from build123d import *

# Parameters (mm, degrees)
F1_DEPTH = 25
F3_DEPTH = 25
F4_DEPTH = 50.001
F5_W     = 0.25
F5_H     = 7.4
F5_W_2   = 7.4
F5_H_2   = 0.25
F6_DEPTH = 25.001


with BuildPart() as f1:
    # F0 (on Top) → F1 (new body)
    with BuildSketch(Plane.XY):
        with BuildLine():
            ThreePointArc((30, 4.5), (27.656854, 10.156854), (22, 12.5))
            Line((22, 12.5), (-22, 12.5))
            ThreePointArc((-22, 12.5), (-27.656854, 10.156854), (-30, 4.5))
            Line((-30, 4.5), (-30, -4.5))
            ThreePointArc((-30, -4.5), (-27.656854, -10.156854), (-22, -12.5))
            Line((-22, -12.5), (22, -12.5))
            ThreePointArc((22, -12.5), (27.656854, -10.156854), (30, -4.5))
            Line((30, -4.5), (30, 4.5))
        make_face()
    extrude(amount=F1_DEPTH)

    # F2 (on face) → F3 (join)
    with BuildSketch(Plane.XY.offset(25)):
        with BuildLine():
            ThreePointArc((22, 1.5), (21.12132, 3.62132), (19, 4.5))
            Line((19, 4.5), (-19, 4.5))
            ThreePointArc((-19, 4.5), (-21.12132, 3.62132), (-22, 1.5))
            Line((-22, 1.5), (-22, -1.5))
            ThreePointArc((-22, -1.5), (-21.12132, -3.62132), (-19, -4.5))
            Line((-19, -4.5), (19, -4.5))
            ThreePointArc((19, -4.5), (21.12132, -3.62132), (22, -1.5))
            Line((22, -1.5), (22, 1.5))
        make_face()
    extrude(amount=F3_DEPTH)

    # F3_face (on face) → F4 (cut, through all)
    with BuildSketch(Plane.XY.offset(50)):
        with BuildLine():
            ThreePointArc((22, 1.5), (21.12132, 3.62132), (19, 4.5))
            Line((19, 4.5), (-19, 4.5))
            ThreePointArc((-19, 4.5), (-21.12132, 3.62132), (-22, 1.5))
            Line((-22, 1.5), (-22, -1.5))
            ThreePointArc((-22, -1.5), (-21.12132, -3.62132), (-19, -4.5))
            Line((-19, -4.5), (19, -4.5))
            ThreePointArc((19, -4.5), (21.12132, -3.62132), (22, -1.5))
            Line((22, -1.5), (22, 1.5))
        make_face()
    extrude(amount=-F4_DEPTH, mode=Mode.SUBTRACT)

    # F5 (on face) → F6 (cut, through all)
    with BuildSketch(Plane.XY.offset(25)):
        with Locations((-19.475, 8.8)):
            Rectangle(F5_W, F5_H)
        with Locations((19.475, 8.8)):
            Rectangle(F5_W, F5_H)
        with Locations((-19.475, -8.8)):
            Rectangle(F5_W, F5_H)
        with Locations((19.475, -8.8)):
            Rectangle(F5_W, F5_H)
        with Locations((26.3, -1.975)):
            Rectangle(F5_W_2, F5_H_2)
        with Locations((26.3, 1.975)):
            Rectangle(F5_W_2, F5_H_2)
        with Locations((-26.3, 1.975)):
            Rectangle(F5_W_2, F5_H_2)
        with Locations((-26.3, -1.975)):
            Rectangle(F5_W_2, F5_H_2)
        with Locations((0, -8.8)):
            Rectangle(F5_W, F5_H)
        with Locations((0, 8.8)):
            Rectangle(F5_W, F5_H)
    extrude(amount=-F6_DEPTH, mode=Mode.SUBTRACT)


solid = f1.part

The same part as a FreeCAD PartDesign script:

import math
import FreeCAD as App
import Part
import Sketcher

V = App.Vector


def add_polygon(sketch, points):
    """Adds a closed chain of lines whose ends are joined by coincident constraints."""
    first, n = sketch.GeometryCount, len(points)
    for a, b in zip(points, points[1:] + points[:1]):
        sketch.addGeometry(Part.LineSegment(App.Vector(*a, 0), App.Vector(*b, 0)), False)
    for i in range(n):
        sketch.addConstraint(Sketcher.Constraint("Coincident", first + i, 2, first + (i + 1) % n, 1))

doc = App.newDocument("Part")
body = doc.addObject("PartDesign::Body", "Body")

sketch1 = body.newObject("Sketcher::SketchObject", "Sketch")
sketch1.AttachmentSupport = (doc.getObject("XY_Plane"), [""])
sketch1.MapMode = "FlatFace"
sketch1.addGeometry(Part.ArcOfCircle(Part.Circle(V(22, 4, 0), V(0, 0, 1), 8), math.radians(0), math.radians(90)), False)
sketch1.addGeometry(Part.LineSegment(V(22, 12, 0), V(-22, 12, 0)), False)
sketch1.addGeometry(Part.ArcOfCircle(Part.Circle(V(-22, 4, 0), V(0, 0, 1), 8), math.radians(90), math.radians(180)), False)
sketch1.addGeometry(Part.LineSegment(V(-30, 4, 0), V(-30, -4, 0)), False)
sketch1.addGeometry(Part.ArcOfCircle(Part.Circle(V(-22, -4, 0), V(0, 0, 1), 8), math.radians(-180), math.radians(-90)), False)
sketch1.addGeometry(Part.LineSegment(V(-22, -12, 0), V(22, -12, 0)), False)
sketch1.addGeometry(Part.ArcOfCircle(Part.Circle(V(22, -4, 0), V(0, 0, 1), 8), math.radians(-90), math.radians(0)), False)
sketch1.addGeometry(Part.LineSegment(V(30, -4, 0), V(30, 4, 0)), False)
sketch1.addConstraint(Sketcher.Constraint("Tangent", 0, 2, 1, 1))
sketch1.addConstraint(Sketcher.Constraint("Tangent", 1, 2, 2, 1))
sketch1.addConstraint(Sketcher.Constraint("Tangent", 2, 2, 3, 1))
sketch1.addConstraint(Sketcher.Constraint("Tangent", 3, 2, 4, 1))
sketch1.addConstraint(Sketcher.Constraint("Tangent", 4, 2, 5, 1))
sketch1.addConstraint(Sketcher.Constraint("Tangent", 5, 2, 6, 1))
sketch1.addConstraint(Sketcher.Constraint("Tangent", 6, 2, 7, 1))
sketch1.addConstraint(Sketcher.Constraint("Tangent", 7, 2, 0, 1))
sketch1.addConstraint(Sketcher.Constraint("Horizontal", 1))
sketch1.addConstraint(Sketcher.Constraint("Vertical", 3))
sketch1.addConstraint(Sketcher.Constraint("Horizontal", 5))
sketch1.addConstraint(Sketcher.Constraint("Vertical", 7))
sketch1.addConstraint(Sketcher.Constraint("Equal", 0, 2))
sketch1.addConstraint(Sketcher.Constraint("Equal", 2, 4))
sketch1.addConstraint(Sketcher.Constraint("Equal", 4, 6))
sketch1.addConstraint(Sketcher.Constraint("Symmetric", 0, 3, 4, 3, -1, 1))
sketch1.addConstraint(Sketcher.Constraint("Radius", 0, 8.000001))
sketch1.addConstraint(Sketcher.Constraint("DistanceX", 1, 2, 1, 1, 44.0))
sketch1.addConstraint(Sketcher.Constraint("DistanceY", 3, 2, 3, 1, 9.0))
pad1 = body.newObject("PartDesign::Pad", "Pad")
pad1.Profile = sketch1
pad1.Length = 25

sketch2 = body.newObject("Sketcher::SketchObject", "Sketch001")
sketch2.AttachmentSupport = (doc.getObject("XY_Plane"), [""])
sketch2.MapMode = "FlatFace"
sketch2.AttachmentOffset = App.Placement(V(0, 0, 25), App.Rotation())
sketch2.addGeometry(Part.ArcOfCircle(Part.Circle(V(19, 1.5, 0), V(0, 0, 1), 3), math.radians(0), math.radians(90)), False)
sketch2.addGeometry(Part.LineSegment(V(19, 4.5, 0), V(-19, 4.5, 0)), False)
sketch2.addGeometry(Part.ArcOfCircle(Part.Circle(V(-19, 1.5, 0), V(0, 0, 1), 3), math.radians(90), math.radians(180)), False)
sketch2.addGeometry(Part.LineSegment(V(-22, 1.5, 0), V(-22, -1.5, 0)), False)
sketch2.addGeometry(Part.ArcOfCircle(Part.Circle(V(-19, -1.5, 0), V(0, 0, 1), 3), math.radians(-180), math.radians(-90)), False)
sketch2.addGeometry(Part.LineSegment(V(-19, -4.5, 0), V(19, -4.5, 0)), False)
sketch2.addGeometry(Part.ArcOfCircle(Part.Circle(V(19, -1.5, 0), V(0, 0, 1), 3), math.radians(-90), math.radians(0)), False)
sketch2.addGeometry(Part.LineSegment(V(22, -1.5, 0), V(22, 1.5, 0)), False)
sketch2.addConstraint(Sketcher.Constraint("Tangent", 0, 2, 1, 1))
sketch2.addConstraint(Sketcher.Constraint("Tangent", 1, 2, 2, 1))
sketch2.addConstraint(Sketcher.Constraint("Tangent", 2, 2, 3, 1))
sketch2.addConstraint(Sketcher.Constraint("Tangent", 3, 2, 4, 1))
sketch2.addConstraint(Sketcher.Constraint("Tangent", 4, 2, 5, 1))
sketch2.addConstraint(Sketcher.Constraint("Tangent", 5, 2, 6, 1))
sketch2.addConstraint(Sketcher.Constraint("Tangent", 6, 2, 7, 1))
sketch2.addConstraint(Sketcher.Constraint("Tangent", 7, 2, 0, 1))
sketch2.addConstraint(Sketcher.Constraint("Horizontal", 1))
sketch2.addConstraint(Sketcher.Constraint("Vertical", 3))
sketch2.addConstraint(Sketcher.Constraint("Horizontal", 5))
sketch2.addConstraint(Sketcher.Constraint("Vertical", 7))
sketch2.addConstraint(Sketcher.Constraint("Equal", 0, 2))
sketch2.addConstraint(Sketcher.Constraint("Equal", 2, 4))
sketch2.addConstraint(Sketcher.Constraint("Equal", 4, 6))
sketch2.addConstraint(Sketcher.Constraint("Symmetric", 0, 3, 4, 3, -1, 1))
sketch2.addConstraint(Sketcher.Constraint("Radius", 0, 3.000001))
sketch2.addConstraint(Sketcher.Constraint("DistanceX", 1, 2, 1, 1, 38.0))
sketch2.addConstraint(Sketcher.Constraint("DistanceY", 3, 2, 3, 1, 3.0))
pad2 = body.newObject("PartDesign::Pad", "Pad001")
pad2.Profile = sketch2
pad2.Length = 25

sketch3 = body.newObject("Sketcher::SketchObject", "Sketch002")
sketch3.AttachmentSupport = (doc.getObject("XY_Plane"), [""])
sketch3.MapMode = "FlatFace"
sketch3.AttachmentOffset = App.Placement(V(0, 0, 50), App.Rotation())
sketch3.addGeometry(Part.ArcOfCircle(Part.Circle(V(19, 1.5, 0), V(0, 0, 1), 3), math.radians(0), math.radians(90)), False)
sketch3.addGeometry(Part.LineSegment(V(19, 4.5, 0), V(-19, 4.5, 0)), False)
sketch3.addGeometry(Part.ArcOfCircle(Part.Circle(V(-19, 1.5, 0), V(0, 0, 1), 3), math.radians(90), math.radians(180)), False)
sketch3.addGeometry(Part.LineSegment(V(-22, 1.5, 0), V(-22, -1.5, 0)), False)
sketch3.addGeometry(Part.ArcOfCircle(Part.Circle(V(-19, -1.5, 0), V(0, 0, 1), 3), math.radians(-180), math.radians(-90)), False)
sketch3.addGeometry(Part.LineSegment(V(-19, -4.5, 0), V(19, -4.5, 0)), False)
sketch3.addGeometry(Part.ArcOfCircle(Part.Circle(V(19, -1.5, 0), V(0, 0, 1), 3), math.radians(-90), math.radians(0)), False)
sketch3.addGeometry(Part.LineSegment(V(22, -1.5, 0), V(22, 1.5, 0)), False)
sketch3.addConstraint(Sketcher.Constraint("Tangent", 0, 2, 1, 1))
sketch3.addConstraint(Sketcher.Constraint("Tangent", 1, 2, 2, 1))
sketch3.addConstraint(Sketcher.Constraint("Tangent", 2, 2, 3, 1))
sketch3.addConstraint(Sketcher.Constraint("Tangent", 3, 2, 4, 1))
sketch3.addConstraint(Sketcher.Constraint("Tangent", 4, 2, 5, 1))
sketch3.addConstraint(Sketcher.Constraint("Tangent", 5, 2, 6, 1))
sketch3.addConstraint(Sketcher.Constraint("Tangent", 6, 2, 7, 1))
sketch3.addConstraint(Sketcher.Constraint("Tangent", 7, 2, 0, 1))
sketch3.addConstraint(Sketcher.Constraint("Horizontal", 1))
sketch3.addConstraint(Sketcher.Constraint("Vertical", 3))
sketch3.addConstraint(Sketcher.Constraint("Horizontal", 5))
sketch3.addConstraint(Sketcher.Constraint("Vertical", 7))
sketch3.addConstraint(Sketcher.Constraint("Equal", 0, 2))
sketch3.addConstraint(Sketcher.Constraint("Equal", 2, 4))
sketch3.addConstraint(Sketcher.Constraint("Equal", 4, 6))
sketch3.addConstraint(Sketcher.Constraint("Symmetric", 0, 3, 4, 3, -1, 1))
sketch3.addConstraint(Sketcher.Constraint("Radius", 0, 3.000001))
sketch3.addConstraint(Sketcher.Constraint("DistanceX", 1, 2, 1, 1, 38.0))
sketch3.addConstraint(Sketcher.Constraint("DistanceY", 3, 2, 3, 1, 3.0))
pocket1 = body.newObject("PartDesign::Pocket", "Pocket")
pocket1.Profile = sketch3
pocket1.Type = "ThroughAll"

sketch4 = body.newObject("Sketcher::SketchObject", "Sketch003")
sketch4.AttachmentSupport = (doc.getObject("XY_Plane"), [""])
sketch4.MapMode = "FlatFace"
sketch4.AttachmentOffset = App.Placement(V(0, 0, 25), App.Rotation())
add_polygon(sketch4, [(-19.6, 12.5), (-19.6, 5.1), (-19.35, 5.1), (-19.35, 12.5)])
add_polygon(sketch4, [(19.35, 12.5), (19.35, 5.1), (19.6, 5.1), (19.6, 12.5)])
add_polygon(sketch4, [(-19.6, -5.1), (-19.6, -12.5), (-19.35, -12.5), (-19.35, -5.1)])
add_polygon(sketch4, [(19.35, -5.1), (19.35, -12.5), (19.6, -12.5), (19.6, -5.1)])
add_polygon(sketch4, [(22.6, -1.85), (22.6, -2.1), (30, -2.1), (30, -1.85)])
add_polygon(sketch4, [(22.6, 2.1), (22.6, 1.85), (30, 1.85), (30, 2.1)])
add_polygon(sketch4, [(-30, 2.1), (-30, 1.85), (-22.6, 1.85), (-22.6, 2.1)])
add_polygon(sketch4, [(-30, -1.85), (-30, -2.1), (-22.6, -2.1), (-22.6, -1.85)])
add_polygon(sketch4, [(-0.12, -5.1), (-0.12, -12.5), (0.12, -12.5), (0.12, -5.1)])
add_polygon(sketch4, [(-0.12, 12.5), (-0.12, 5.1), (0.12, 5.1), (0.12, 12.5)])
sketch4.addConstraint(Sketcher.Constraint("Vertical", 0))
sketch4.addConstraint(Sketcher.Constraint("Horizontal", 1))
sketch4.addConstraint(Sketcher.Constraint("Vertical", 2))
sketch4.addConstraint(Sketcher.Constraint("Horizontal", 3))
sketch4.addConstraint(Sketcher.Constraint("Vertical", 4))
sketch4.addConstraint(Sketcher.Constraint("Horizontal", 5))
sketch4.addConstraint(Sketcher.Constraint("Vertical", 6))
sketch4.addConstraint(Sketcher.Constraint("Horizontal", 7))
sketch4.addConstraint(Sketcher.Constraint("Vertical", 8))
sketch4.addConstraint(Sketcher.Constraint("Horizontal", 9))
sketch4.addConstraint(Sketcher.Constraint("Vertical", 10))
sketch4.addConstraint(Sketcher.Constraint("Horizontal", 11))
sketch4.addConstraint(Sketcher.Constraint("Vertical", 12))
sketch4.addConstraint(Sketcher.Constraint("Horizontal", 13))
sketch4.addConstraint(Sketcher.Constraint("Vertical", 14))
sketch4.addConstraint(Sketcher.Constraint("Horizontal", 15))
sketch4.addConstraint(Sketcher.Constraint("Vertical", 16))
sketch4.addConstraint(Sketcher.Constraint("Horizontal", 17))
sketch4.addConstraint(Sketcher.Constraint("Vertical", 18))
sketch4.addConstraint(Sketcher.Constraint("Horizontal", 19))
sketch4.addConstraint(Sketcher.Constraint("Vertical", 20))
sketch4.addConstraint(Sketcher.Constraint("Horizontal", 21))
sketch4.addConstraint(Sketcher.Constraint("Vertical", 22))
sketch4.addConstraint(Sketcher.Constraint("Horizontal", 23))
sketch4.addConstraint(Sketcher.Constraint("Vertical", 24))
sketch4.addConstraint(Sketcher.Constraint("Horizontal", 25))
sketch4.addConstraint(Sketcher.Constraint("Vertical", 26))
sketch4.addConstraint(Sketcher.Constraint("Horizontal", 27))
sketch4.addConstraint(Sketcher.Constraint("Vertical", 28))
sketch4.addConstraint(Sketcher.Constraint("Horizontal", 29))
sketch4.addConstraint(Sketcher.Constraint("Vertical", 30))
sketch4.addConstraint(Sketcher.Constraint("Horizontal", 31))
sketch4.addConstraint(Sketcher.Constraint("Vertical", 32))
sketch4.addConstraint(Sketcher.Constraint("Horizontal", 33))
sketch4.addConstraint(Sketcher.Constraint("Vertical", 34))
sketch4.addConstraint(Sketcher.Constraint("Horizontal", 35))
sketch4.addConstraint(Sketcher.Constraint("Vertical", 36))
sketch4.addConstraint(Sketcher.Constraint("Horizontal", 37))
sketch4.addConstraint(Sketcher.Constraint("Vertical", 38))
sketch4.addConstraint(Sketcher.Constraint("Horizontal", 39))
sketch4.addConstraint(Sketcher.Constraint("Symmetric", 6, 2, 8, 2, -1, 1))
sketch4.addConstraint(Sketcher.Constraint("Symmetric", 4, 2, 10, 2, -1, 1))
sketch4.addConstraint(Sketcher.Constraint("Symmetric", 2, 2, 12, 2, -1, 1))
sketch4.addConstraint(Sketcher.Constraint("Symmetric", 0, 2, 14, 2, -1, 1))
sketch4.addConstraint(Sketcher.Constraint("Symmetric", 18, 2, 24, 2, -1, 1))
sketch4.addConstraint(Sketcher.Constraint("Symmetric", 16, 2, 26, 2, -1, 1))
sketch4.addConstraint(Sketcher.Constraint("Symmetric", 22, 2, 28, 2, -1, 1))
sketch4.addConstraint(Sketcher.Constraint("Symmetric", 20, 2, 30, 2, -1, 1))
sketch4.addConstraint(Sketcher.Constraint("Symmetric", 34, 2, 36, 2, -1, 1))
sketch4.addConstraint(Sketcher.Constraint("Symmetric", 32, 2, 38, 2, -1, 1))
sketch4.addConstraint(Sketcher.Constraint("Symmetric", 1, 2, 4, 2, -2))
sketch4.addConstraint(Sketcher.Constraint("Symmetric", 3, 2, 6, 2, -2))
sketch4.addConstraint(Sketcher.Constraint("Symmetric", 21, 2, 24, 2, -2))
sketch4.addConstraint(Sketcher.Constraint("Symmetric", 23, 2, 26, 2, -2))
sketch4.addConstraint(Sketcher.Constraint("Horizontal", 13, 2, 32, 2))
sketch4.addConstraint(Sketcher.Constraint("Horizontal", 15, 2, 34, 2))
sketch4.addConstraint(Sketcher.Constraint("Vertical", 35, 2, 36, 2))
sketch4.addConstraint(Sketcher.Constraint("Equal", 15, 33))
sketch4.addConstraint(Sketcher.Constraint("Equal", 31, 0))
sketch4.addConstraint(Sketcher.Constraint("Equal", 39, 16))
sketch4.addConstraint(Sketcher.Constraint("DistanceX", 17, 1, 17, 2, 7.4))
sketch4.addConstraint(Sketcher.Constraint("DistanceX", -1, 1, 17, 2, 30.0))
sketch4.addConstraint(Sketcher.Constraint("DistanceY", 8, 2, 3, 2, 25.0))
sketch4.addConstraint(Sketcher.Constraint("DistanceX", 14, 2, 16, 2, 3.0))
sketch4.addConstraint(Sketcher.Constraint("DistanceY", 14, 2, 16, 2, 3.0))
sketch4.addConstraint(Sketcher.Constraint("DistanceX", 1, 1, 1, 2, 0.25))
pocket2 = body.newObject("PartDesign::Pocket", "Pocket001")
pocket2.Profile = sketch4
pocket2.Type = "ThroughAll"

doc.recompute()
